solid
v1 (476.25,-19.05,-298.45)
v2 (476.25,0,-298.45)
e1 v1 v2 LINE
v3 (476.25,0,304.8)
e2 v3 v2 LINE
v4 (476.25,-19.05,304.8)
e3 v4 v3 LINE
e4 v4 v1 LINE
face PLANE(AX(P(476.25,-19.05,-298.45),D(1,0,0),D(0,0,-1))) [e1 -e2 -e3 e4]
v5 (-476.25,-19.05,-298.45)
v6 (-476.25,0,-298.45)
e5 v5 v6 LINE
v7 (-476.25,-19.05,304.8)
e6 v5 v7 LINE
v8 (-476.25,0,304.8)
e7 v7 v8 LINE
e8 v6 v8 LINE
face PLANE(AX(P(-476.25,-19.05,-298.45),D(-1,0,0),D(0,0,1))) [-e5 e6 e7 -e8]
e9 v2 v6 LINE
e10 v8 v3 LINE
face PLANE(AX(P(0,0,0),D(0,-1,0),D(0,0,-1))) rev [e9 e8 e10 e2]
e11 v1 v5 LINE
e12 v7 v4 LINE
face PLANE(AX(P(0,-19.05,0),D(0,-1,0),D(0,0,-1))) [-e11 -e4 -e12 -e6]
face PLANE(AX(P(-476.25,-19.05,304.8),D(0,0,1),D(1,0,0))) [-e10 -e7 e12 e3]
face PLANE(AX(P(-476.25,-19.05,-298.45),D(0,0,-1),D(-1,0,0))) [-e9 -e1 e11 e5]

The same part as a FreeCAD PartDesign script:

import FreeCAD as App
import Part
import Sketcher

V = App.Vector
Q = App.Units.Quantity

doc = App.newDocument("Part")
body = doc.addObject("PartDesign::Body", "Body")

# Sketch on XZ plane
sketch1 = body.newObject("Sketcher::SketchObject", "Sketch")
sketch1.AttachmentSupport = (doc.getObject("XZ_Plane"), [""])
sketch1.MapMode = "FlatFace"
sketch1.addGeometry([
    Part.LineSegment(V(-476, -298, 0), V(-476, 305, 0)),
    Part.LineSegment(V(-476, 305, 0), V(476, 305, 0)),
    Part.LineSegment(V(476, 305, 0), V(476, -298, 0)),
    Part.LineSegment(V(476, -298, 0), V(-476, -298, 0)),
], False)
sketch1.addConstraint([
    Sketcher.Constraint("Coincident", 0, 2, 1, 1),
    Sketcher.Constraint("Coincident", 1, 2, 2, 1),
    Sketcher.Constraint("Coincident", 2, 2, 3, 1),
    Sketcher.Constraint("Coincident", 3, 2, 0, 1),
    Sketcher.Constraint("Vertical", 0),
    Sketcher.Constraint("Horizontal", 1),
    Sketcher.Constraint("Vertical", 2),
    Sketcher.Constraint("Horizontal", 3),
    Sketcher.Constraint("DistanceX", 1, 1, 1, 2, Q("37.5 in")),
    Sketcher.Constraint("DistanceY", -1, 1, 0, 2, Q("12 in")),
    Sketcher.Constraint("DistanceY", 0, 1, 0, 2, Q("23.75 in")),
    Sketcher.Constraint("DistanceX", 0, 2, -1, 1, Q("18.75 in")),
])
pad1 = body.newObject("PartDesign::Pad", "Pad")
pad1.Profile = sketch1
pad1.Length = Q("0.75 in")

doc.recompute()
